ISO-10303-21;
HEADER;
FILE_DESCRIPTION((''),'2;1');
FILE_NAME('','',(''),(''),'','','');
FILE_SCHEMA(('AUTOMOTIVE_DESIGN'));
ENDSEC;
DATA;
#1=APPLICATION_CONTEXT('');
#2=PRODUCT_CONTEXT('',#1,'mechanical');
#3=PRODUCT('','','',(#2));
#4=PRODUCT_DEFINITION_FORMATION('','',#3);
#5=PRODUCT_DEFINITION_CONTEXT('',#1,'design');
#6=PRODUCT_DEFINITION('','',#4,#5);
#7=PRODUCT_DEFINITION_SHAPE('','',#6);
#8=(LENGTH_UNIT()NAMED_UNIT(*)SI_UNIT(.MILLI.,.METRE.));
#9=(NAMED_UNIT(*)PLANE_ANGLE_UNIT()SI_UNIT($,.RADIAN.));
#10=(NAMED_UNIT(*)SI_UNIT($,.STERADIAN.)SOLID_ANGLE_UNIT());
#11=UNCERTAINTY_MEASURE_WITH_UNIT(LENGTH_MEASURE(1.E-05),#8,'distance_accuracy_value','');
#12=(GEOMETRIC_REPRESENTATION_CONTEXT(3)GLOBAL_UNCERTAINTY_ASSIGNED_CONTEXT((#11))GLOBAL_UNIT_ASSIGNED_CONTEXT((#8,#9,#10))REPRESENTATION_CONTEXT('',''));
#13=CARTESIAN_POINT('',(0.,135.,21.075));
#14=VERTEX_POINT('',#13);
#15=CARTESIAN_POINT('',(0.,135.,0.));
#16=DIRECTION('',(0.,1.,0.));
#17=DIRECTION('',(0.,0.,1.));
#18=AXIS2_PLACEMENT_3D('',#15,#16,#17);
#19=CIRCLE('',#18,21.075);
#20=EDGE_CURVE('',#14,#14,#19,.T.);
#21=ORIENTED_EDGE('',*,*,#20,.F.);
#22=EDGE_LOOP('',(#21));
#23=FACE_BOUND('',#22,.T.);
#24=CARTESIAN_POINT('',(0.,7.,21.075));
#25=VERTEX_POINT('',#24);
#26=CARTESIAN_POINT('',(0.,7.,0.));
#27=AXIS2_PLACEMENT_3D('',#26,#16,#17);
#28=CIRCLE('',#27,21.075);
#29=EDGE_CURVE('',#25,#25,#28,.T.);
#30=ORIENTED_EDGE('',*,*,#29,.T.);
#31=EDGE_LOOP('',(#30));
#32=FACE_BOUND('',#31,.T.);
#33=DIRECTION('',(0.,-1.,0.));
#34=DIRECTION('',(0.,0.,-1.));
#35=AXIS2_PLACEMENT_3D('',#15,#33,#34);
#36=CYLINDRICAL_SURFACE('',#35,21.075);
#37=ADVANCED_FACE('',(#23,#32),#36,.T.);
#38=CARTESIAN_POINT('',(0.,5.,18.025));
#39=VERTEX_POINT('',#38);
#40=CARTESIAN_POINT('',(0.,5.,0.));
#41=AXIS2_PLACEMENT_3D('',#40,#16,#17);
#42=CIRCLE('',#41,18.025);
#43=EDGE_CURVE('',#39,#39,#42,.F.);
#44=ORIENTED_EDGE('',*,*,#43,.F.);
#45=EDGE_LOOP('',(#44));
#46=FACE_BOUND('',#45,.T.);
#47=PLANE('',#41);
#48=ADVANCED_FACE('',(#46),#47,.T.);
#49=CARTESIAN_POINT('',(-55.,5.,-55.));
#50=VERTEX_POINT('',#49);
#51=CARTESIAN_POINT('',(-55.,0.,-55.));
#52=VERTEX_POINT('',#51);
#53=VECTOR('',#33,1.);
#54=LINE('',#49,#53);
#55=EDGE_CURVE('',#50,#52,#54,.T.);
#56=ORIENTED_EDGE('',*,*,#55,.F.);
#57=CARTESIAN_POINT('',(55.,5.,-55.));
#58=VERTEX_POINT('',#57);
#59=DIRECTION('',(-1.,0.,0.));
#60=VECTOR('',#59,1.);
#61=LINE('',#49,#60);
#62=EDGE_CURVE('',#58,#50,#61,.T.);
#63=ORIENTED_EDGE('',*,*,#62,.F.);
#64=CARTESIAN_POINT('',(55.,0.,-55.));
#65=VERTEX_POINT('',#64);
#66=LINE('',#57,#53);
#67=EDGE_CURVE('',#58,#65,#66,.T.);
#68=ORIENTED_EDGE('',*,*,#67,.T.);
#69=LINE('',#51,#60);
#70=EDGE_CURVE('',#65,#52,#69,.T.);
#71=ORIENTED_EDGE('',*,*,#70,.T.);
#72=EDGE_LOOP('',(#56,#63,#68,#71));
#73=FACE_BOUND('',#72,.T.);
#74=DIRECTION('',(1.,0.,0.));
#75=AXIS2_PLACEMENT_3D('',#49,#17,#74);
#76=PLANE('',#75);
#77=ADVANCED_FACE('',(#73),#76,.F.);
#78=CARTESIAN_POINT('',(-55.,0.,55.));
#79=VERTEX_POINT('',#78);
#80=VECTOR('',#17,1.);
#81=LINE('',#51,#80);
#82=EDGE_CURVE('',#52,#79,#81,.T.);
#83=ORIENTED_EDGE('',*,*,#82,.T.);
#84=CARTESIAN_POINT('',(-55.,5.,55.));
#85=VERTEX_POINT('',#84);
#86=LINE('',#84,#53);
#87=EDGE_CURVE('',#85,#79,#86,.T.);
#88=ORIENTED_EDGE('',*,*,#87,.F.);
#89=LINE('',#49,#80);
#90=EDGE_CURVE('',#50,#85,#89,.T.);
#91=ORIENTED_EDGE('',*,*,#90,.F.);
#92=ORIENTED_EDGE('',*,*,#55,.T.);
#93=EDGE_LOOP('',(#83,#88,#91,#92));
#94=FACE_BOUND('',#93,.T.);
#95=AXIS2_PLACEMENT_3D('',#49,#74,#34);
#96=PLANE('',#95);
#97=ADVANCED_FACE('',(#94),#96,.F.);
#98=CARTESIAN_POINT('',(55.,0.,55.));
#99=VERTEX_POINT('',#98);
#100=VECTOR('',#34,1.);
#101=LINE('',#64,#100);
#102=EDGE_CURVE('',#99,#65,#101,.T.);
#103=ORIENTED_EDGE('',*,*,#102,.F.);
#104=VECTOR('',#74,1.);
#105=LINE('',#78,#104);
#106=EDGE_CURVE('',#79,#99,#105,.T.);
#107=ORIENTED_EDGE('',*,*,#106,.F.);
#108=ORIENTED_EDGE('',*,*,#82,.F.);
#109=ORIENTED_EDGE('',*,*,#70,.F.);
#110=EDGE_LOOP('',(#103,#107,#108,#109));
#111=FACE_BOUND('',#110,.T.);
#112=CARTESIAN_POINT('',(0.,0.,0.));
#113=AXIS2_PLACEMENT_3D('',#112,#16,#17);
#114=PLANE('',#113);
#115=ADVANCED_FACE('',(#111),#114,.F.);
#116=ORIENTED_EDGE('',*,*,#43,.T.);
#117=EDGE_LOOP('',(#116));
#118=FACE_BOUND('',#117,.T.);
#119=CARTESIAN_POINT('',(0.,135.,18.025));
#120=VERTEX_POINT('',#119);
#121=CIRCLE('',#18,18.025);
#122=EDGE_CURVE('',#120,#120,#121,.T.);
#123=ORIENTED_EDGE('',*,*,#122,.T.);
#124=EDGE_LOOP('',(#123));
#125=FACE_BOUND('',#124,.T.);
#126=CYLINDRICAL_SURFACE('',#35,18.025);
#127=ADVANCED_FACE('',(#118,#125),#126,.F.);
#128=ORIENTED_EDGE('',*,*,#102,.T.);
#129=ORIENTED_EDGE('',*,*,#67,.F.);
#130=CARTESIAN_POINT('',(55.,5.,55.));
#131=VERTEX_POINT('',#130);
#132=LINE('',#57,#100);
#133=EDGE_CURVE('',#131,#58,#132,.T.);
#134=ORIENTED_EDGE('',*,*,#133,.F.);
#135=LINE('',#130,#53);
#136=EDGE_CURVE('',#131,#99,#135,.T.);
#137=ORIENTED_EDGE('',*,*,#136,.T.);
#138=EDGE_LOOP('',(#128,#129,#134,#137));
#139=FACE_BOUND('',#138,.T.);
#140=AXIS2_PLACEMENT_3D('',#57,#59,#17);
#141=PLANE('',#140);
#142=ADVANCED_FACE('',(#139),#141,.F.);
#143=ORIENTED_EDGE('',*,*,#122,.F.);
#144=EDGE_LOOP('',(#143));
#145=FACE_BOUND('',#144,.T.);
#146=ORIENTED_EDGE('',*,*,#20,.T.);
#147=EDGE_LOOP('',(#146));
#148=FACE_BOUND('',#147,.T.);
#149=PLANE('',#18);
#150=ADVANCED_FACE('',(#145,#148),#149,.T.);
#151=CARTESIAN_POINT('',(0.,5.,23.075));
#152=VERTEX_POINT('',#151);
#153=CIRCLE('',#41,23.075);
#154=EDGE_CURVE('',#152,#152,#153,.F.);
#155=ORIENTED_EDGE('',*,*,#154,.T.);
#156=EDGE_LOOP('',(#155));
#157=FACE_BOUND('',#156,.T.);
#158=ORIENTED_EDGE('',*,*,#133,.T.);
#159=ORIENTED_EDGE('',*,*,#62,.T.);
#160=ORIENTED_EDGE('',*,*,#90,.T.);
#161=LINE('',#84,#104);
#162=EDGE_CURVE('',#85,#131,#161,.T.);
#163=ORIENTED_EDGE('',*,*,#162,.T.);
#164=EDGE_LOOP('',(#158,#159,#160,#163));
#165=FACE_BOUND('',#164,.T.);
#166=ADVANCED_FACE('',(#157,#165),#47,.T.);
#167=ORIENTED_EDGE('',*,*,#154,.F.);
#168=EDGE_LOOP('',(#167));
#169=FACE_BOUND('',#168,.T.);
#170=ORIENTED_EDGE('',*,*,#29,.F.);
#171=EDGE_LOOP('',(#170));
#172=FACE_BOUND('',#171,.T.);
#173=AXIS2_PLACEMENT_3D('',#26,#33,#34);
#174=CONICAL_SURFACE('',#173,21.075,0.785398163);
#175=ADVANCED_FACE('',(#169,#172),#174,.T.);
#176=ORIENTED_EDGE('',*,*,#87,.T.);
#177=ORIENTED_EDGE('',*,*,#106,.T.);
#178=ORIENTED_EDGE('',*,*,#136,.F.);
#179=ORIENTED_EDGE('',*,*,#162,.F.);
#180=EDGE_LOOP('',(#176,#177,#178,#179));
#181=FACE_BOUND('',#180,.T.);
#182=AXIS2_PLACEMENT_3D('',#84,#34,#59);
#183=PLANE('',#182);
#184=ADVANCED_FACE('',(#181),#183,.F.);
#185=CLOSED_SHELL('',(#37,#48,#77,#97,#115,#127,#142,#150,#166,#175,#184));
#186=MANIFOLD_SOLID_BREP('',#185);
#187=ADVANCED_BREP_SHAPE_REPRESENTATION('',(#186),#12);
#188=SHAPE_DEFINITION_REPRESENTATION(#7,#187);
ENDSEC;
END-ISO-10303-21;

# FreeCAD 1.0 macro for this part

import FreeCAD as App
import Part
import Sketcher

V = App.Vector
Q = App.Units.Quantity


def edges_at(feature, points):
    """Names of the edges that pass closest to the given points."""
    edges = feature.Shape.Edges
    near = lambda p: min(range(len(edges)), key=lambda i: edges[i].distToShape(Part.Vertex(*p))[0])
    return sorted({f"Edge{near(p) + 1}" for p in points})

doc = App.newDocument("Part")
params = doc.addObject("Spreadsheet::Sheet", "Params")
for row, (alias, value) in enumerate([
    ("sketch1_width", "110 mm"),
    ("pad1_length", "5 mm"),
    ("sketch2_diameter", "42.15 mm"),
    ("sketch2_diameter2", "36.05 mm"),
    ("pad2_length", "130 mm"),
    ("chamfer_size", "2 mm"),
], start=1):
    params.set(f"A{row}", alias)
    params.set(f"B{row}", "=" + value)
    params.setAlias(f"B{row}", alias)

body = doc.addObject("PartDesign::Body", "Body")

sketch1 = body.newObject("Sketcher::SketchObject", "Sketch")
sketch1.AttachmentSupport = (doc.getObject("XZ_Plane"), [""])
sketch1.MapMode = "FlatFace"
sketch1.addGeometry(Part.LineSegment(V(-55, -55, 0), V(-55, 55, 0)), False)
sketch1.addGeometry(Part.LineSegment(V(-55, 55, 0), V(55, 55, 0)), False)
sketch1.addGeometry(Part.LineSegment(V(55, 55, 0), V(55, -55, 0)), False)
sketch1.addGeometry(Part.LineSegment(V(55, -55, 0), V(-55, -55, 0)), False)
sketch1.addConstraint(Sketcher.Constraint("Coincident", 0, 2, 1, 1))
sketch1.addConstraint(Sketcher.Constraint("Coincident", 1, 2, 2, 1))
sketch1.addConstraint(Sketcher.Constraint("Coincident", 2, 2, 3, 1))
sketch1.addConstraint(Sketcher.Constraint("Coincident", 3, 2, 0, 1))
sketch1.addConstraint(Sketcher.Constraint("Vertical", 0))
sketch1.addConstraint(Sketcher.Constraint("Horizontal", 1))
sketch1.addConstraint(Sketcher.Constraint("Vertical", 2))
sketch1.addConstraint(Sketcher.Constraint("Horizontal", 3))
sketch1.addConstraint(Sketcher.Constraint("Symmetric", 0, 2, 2, 2, -1, 1))
sketch1.addConstraint(Sketcher.Constraint("Equal", 3, 0))
sketch1.addConstraint(Sketcher.Constraint("DistanceX", 1, 1, 1, 2, Q("110 mm")))
sketch1.setExpression("Constraints[10]", "Params.sketch1_width")
pad1 = body.newObject("PartDesign::Pad", "Pad")
pad1.Profile = sketch1
pad1.setExpression("Length", "Params.pad1_length")
pad1.Reversed = True

sketch2 = body.newObject("Sketcher::SketchObject", "Sketch001")
sketch2.AttachmentSupport = (doc.getObject("XZ_Plane"), [""])
sketch2.MapMode = "FlatFace"
sketch2.AttachmentOffset = App.Placement(V(0, 0, -5), App.Rotation())
sketch2.addGeometry(Part.Circle(V(0, 0, 0), V(0, 0, 1), 21), False)
sketch2.addGeometry(Part.Circle(V(0, 0, 0), V(0, 0, 1), 18), False)
sketch2.addConstraint(Sketcher.Constraint("Coincident", 0, 3, -1, 1))
sketch2.addConstraint(Sketcher.Constraint("Coincident", 1, 3, -1, 1))
sketch2.addConstraint(Sketcher.Constraint("Diameter", 0, Q("42.15 mm")))
sketch2.addConstraint(Sketcher.Constraint("Diameter", 1, Q("36.05 mm")))
sketch2.setExpression("Constraints[2]", "Params.sketch2_diameter")
sketch2.setExpression("Constraints[3]", "Params.sketch2_diameter2")
pad2 = body.newObject("PartDesign::Pad", "Pad001")
pad2.Profile = sketch2
pad2.setExpression("Length", "Params.pad2_length")
pad2.Reversed = True
doc.recompute()

chamfer = body.newObject("PartDesign::Chamfer", "Chamfer")
chamfer.Base = (pad2, edges_at(pad2, [(0, 5, -21.075)]))
chamfer.setExpression("Size", "Params.chamfer_size")

doc.recompute()
